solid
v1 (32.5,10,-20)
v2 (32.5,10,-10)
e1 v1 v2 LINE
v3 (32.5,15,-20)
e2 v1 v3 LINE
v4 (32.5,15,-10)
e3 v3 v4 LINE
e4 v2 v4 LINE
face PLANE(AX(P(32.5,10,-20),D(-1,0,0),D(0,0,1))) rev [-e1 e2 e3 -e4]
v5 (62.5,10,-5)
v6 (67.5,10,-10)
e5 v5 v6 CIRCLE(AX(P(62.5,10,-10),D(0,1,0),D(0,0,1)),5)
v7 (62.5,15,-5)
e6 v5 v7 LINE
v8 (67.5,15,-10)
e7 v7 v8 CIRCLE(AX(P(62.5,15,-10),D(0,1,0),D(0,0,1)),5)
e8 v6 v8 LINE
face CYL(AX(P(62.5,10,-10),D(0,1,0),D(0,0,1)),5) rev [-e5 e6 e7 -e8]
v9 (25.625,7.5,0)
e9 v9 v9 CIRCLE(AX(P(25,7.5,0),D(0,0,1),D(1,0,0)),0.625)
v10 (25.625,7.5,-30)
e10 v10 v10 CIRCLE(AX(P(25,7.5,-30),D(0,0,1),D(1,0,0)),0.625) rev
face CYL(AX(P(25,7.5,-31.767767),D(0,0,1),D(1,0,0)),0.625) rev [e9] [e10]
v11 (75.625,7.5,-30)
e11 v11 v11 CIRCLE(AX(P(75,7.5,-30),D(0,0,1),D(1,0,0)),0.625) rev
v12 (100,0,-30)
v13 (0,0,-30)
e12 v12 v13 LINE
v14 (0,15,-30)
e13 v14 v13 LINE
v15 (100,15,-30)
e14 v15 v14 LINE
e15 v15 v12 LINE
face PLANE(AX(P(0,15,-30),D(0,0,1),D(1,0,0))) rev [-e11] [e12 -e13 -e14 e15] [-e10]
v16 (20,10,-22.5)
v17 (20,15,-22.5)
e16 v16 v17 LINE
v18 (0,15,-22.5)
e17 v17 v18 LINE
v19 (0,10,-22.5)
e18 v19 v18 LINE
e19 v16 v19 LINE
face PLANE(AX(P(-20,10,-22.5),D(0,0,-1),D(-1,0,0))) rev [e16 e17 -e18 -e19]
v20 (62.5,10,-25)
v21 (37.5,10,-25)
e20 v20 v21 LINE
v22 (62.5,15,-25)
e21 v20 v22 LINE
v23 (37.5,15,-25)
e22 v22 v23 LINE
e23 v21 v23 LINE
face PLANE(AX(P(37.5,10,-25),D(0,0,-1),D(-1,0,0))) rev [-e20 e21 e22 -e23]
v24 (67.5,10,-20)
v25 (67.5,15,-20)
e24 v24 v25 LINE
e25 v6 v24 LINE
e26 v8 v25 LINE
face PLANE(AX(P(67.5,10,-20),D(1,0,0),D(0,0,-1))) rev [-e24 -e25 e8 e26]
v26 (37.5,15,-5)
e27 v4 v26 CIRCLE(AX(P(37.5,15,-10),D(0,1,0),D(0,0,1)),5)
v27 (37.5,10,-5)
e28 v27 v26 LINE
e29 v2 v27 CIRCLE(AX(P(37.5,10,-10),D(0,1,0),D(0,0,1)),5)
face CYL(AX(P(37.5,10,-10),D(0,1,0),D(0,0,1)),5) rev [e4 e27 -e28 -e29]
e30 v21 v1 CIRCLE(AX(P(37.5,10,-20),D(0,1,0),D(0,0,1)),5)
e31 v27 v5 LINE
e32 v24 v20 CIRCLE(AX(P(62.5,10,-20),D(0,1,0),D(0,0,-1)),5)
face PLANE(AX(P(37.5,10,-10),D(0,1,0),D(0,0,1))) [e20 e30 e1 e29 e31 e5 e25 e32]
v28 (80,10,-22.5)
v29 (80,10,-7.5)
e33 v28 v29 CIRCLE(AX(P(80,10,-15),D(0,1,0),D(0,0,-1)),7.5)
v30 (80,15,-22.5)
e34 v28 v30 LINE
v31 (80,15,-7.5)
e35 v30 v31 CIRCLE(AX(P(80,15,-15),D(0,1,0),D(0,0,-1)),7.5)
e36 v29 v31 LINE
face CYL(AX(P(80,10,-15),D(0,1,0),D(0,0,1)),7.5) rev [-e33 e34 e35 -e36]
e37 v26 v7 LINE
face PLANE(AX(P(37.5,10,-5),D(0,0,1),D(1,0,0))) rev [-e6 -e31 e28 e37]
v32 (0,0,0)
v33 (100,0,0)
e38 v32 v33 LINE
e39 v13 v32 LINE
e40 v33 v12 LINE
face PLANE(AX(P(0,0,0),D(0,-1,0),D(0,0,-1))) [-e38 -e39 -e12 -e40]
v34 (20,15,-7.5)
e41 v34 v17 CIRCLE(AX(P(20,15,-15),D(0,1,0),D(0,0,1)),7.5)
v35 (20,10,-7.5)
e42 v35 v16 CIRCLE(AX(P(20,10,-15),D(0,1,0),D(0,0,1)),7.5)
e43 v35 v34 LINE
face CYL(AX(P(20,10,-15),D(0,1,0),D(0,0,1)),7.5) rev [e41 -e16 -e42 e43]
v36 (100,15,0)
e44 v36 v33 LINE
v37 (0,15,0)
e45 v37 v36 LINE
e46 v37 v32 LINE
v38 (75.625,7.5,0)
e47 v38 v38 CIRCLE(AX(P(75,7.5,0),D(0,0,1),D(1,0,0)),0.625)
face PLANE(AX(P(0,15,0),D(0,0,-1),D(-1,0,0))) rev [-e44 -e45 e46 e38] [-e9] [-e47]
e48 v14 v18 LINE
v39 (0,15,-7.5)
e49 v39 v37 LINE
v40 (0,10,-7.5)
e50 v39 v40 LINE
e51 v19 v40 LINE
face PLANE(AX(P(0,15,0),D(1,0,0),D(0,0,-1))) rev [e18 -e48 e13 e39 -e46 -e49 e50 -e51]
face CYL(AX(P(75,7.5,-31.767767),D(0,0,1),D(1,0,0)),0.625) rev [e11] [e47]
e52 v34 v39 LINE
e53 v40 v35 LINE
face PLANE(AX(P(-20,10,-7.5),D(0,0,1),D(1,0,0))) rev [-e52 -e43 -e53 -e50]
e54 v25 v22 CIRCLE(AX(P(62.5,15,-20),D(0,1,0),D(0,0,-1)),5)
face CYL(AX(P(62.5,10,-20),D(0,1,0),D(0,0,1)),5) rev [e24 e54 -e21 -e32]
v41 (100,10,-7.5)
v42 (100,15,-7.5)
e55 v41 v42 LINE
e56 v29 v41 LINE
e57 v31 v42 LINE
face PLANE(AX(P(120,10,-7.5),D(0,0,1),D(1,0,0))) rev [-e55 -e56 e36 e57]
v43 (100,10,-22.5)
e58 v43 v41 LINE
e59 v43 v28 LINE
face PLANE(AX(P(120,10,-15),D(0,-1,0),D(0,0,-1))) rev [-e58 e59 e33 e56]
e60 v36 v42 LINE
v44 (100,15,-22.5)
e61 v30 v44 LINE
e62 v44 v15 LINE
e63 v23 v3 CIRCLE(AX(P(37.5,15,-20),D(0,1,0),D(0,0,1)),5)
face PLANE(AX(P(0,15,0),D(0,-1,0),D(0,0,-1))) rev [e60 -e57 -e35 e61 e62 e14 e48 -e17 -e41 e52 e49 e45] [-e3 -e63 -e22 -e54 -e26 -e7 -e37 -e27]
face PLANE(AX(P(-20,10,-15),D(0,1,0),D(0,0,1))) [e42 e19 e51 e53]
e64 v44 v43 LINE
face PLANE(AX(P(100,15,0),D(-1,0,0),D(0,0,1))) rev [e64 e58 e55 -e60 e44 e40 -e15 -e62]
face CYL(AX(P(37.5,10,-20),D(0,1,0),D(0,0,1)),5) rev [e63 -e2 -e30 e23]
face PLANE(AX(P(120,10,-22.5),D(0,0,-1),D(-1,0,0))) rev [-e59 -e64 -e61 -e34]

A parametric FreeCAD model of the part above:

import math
import FreeCAD as App
import Part
import Sketcher
from FreeCAD import Vector
Q = App.Units.Quantity

doc = App.newDocument("Part")
body = doc.addObject("PartDesign::Body", "Body")

sketch1 = doc.addObject("Sketcher::SketchObject", "Sketch")
body.addObject(sketch1)
sketch1.AttachmentSupport = (doc.XZ_Plane, [""])
sketch1.MapMode = "FlatFace"
sketch1.addGeometry([
    Part.LineSegment(Vector(0, -30, 0), Vector(0, 0, 0)),
    Part.LineSegment(Vector(0, 0, 0), Vector(100, 0, 0)),
    Part.LineSegment(Vector(100, 0, 0), Vector(100, -30, 0)),
    Part.LineSegment(Vector(100, -30, 0), Vector(0, -30, 0)),
], False)
sketch1.addConstraint([
    Sketcher.Constraint("Coincident", 0, 2, 1, 1),
    Sketcher.Constraint("Coincident", 1, 2, 2, 1),
    Sketcher.Constraint("Coincident", 2, 2, 3, 1),
    Sketcher.Constraint("Coincident", 3, 2, 0, 1),
    Sketcher.Constraint("Vertical", 0),
    Sketcher.Constraint("Horizontal", 1),
    Sketcher.Constraint("Vertical", 2),
    Sketcher.Constraint("Horizontal", 3),
    Sketcher.Constraint("Coincident", 0, 2, -1, 1),
    Sketcher.Constraint("DistanceX", 1, 1, 1, 2, Q("100 mm")),
    Sketcher.Constraint("DistanceY", 0, 1, 0, 2, Q("30 mm")),
])
pad1 = doc.addObject("PartDesign::Pad", "Pad")
body.addObject(pad1)
pad1.Profile = sketch1
pad1.Length = 15
pad1.Reversed = True

sketch2 = doc.addObject("Sketcher::SketchObject", "Sketch001")
body.addObject(sketch2)
sketch2.AttachmentSupport = (doc.XZ_Plane, [""])
sketch2.MapMode = "FlatFace"
sketch2.AttachmentOffset = App.Placement(Vector(0, 0, -15), App.Rotation())
sketch2.addGeometry([
    Part.LineSegment(Vector(20, -22.5, 0), Vector(-20, -22.5, 0)),
    Part.ArcOfCircle(Part.Circle(Vector(-20, -15, 0), Vector(0, 0, 1), 7.5), math.radians(90), math.radians(270)),
    Part.LineSegment(Vector(-20, -7.5, 0), Vector(20, -7.5, 0)),
    Part.ArcOfCircle(Part.Circle(Vector(20, -15, 0), Vector(0, 0, 1), 7.5), math.radians(-90), math.radians(90)),
    Part.LineSegment(Vector(120, -22.5, 0), Vector(80, -22.5, 0)),
    Part.ArcOfCircle(Part.Circle(Vector(80, -15, 0), Vector(0, 0, 1), 7.5), math.radians(90), math.radians(270)),
    Part.LineSegment(Vector(80, -7.5, 0), Vector(120, -7.5, 0)),
    Part.ArcOfCircle(Part.Circle(Vector(120, -15, 0), Vector(0, 0, 1), 7.5), math.radians(-90), math.radians(90)),
], False)
sketch2.addConstraint([
    Sketcher.Constraint("Tangent", 0, 2, 1, 2),
    Sketcher.Constraint("Tangent", 1, 1, 2, 1),
    Sketcher.Constraint("Tangent", 2, 2, 3, 2),
    Sketcher.Constraint("Tangent", 3, 1, 0, 1),
    Sketcher.Constraint("Tangent", 4, 2, 5, 2),
    Sketcher.Constraint("Tangent", 5, 1, 6, 1),
    Sketcher.Constraint("Tangent", 6, 2, 7, 2),
    Sketcher.Constraint("Tangent", 7, 1, 4, 1),
    Sketcher.Constraint("Horizontal", 0),
    Sketcher.Constraint("Horizontal", 2),
    Sketcher.Constraint("Horizontal", 4),
    Sketcher.Constraint("Horizontal", 6),
    Sketcher.Constraint("Equal", 3, 5),
    Sketcher.Constraint("Horizontal", 3, 3, 5, 3),
    Sketcher.Constraint("Equal", 2, 4),
    Sketcher.Constraint("Radius", 1, Q("7.5 mm")),
    Sketcher.Constraint("DistanceX", 0, 2, 0, 1, Q("40 mm")),
    Sketcher.Constraint("DistanceX", 1, 3, -1, 1, Q("20 mm")),
    Sketcher.Constraint("DistanceY", 1, 3, -1, 1, Q("15 mm")),
    Sketcher.Constraint("DistanceX", -1, 1, 5, 3, Q("80 mm")),
])
pocket1 = doc.addObject("PartDesign::Pocket", "Pocket")
body.addObject(pocket1)
pocket1.Profile = sketch2
pocket1.Length = 5
pocket1.Reversed = True

sketch3 = doc.addObject("Sketcher::SketchObject", "Sketch002")
body.addObject(sketch3)
sketch3.AttachmentSupport = (doc.XY_Plane, [""])
sketch3.MapMode = "FlatFace"
sketch3.addGeometry([
    Part.Circle(Vector(25, 7.5, 0), Vector(0, 0, 1), 0.625),
    Part.Circle(Vector(75, 7.5, 0), Vector(0, 0, 1), 0.625),
], False)
sketch3.addConstraint([
    Sketcher.Constraint("Equal", 0, 1),
    Sketcher.Constraint("Horizontal", 0, 3, 1, 3),
    Sketcher.Constraint("Diameter", 0, Q("1.25 mm")),
    Sketcher.Constraint("DistanceX", -1, 1, 0, 3, Q("25 mm")),
    Sketcher.Constraint("DistanceX", -1, 1, 1, 3, Q("75 mm")),
    Sketcher.Constraint("DistanceY", -1, 1, 0, 3, Q("7.5 mm")),
])
pocket2 = doc.addObject("PartDesign::Pocket", "Pocket001")
body.addObject(pocket2)
pocket2.Profile = sketch3
pocket2.Length = 30

sketch4 = doc.addObject("Sketcher::SketchObject", "Sketch003")
body.addObject(sketch4)
sketch4.AttachmentSupport = (doc.XZ_Plane, [""])
sketch4.MapMode = "FlatFace"
sketch4.AttachmentOffset = App.Placement(Vector(0, 0, -15), App.Rotation())
sketch4.addGeometry([
    Part.LineSegment(Vector(62.5, -25, 0), Vector(37.5, -25, 0)),
    Part.ArcOfCircle(Part.Circle(Vector(37.5, -20, 0), Vector(0, 0, 1), 5), math.radians(180), math.radians(270)),
    Part.LineSegment(Vector(32.5, -20, 0), Vector(32.5, -10, 0)),
    Part.ArcOfCircle(Part.Circle(Vector(37.5, -10, 0), Vector(0, 0, 1), 5), math.radians(90), math.radians(180)),
    Part.LineSegment(Vector(37.5, -5, 0), Vector(62.5, -5, 0)),
    Part.ArcOfCircle(Part.Circle(Vector(62.5, -10, 0), Vector(0, 0, 1), 5), math.radians(0), math.radians(90)),
    Part.LineSegment(Vector(67.5, -10, 0), Vector(67.5, -20, 0)),
    Part.ArcOfCircle(Part.Circle(Vector(62.5, -20, 0), Vector(0, 0, 1), 5), math.radians(-90), math.radians(0)),
], False)
sketch4.addConstraint([
    Sketcher.Constraint("Tangent", 0, 2, 1, 2),
    Sketcher.Constraint("Tangent", 1, 1, 2, 1),
    Sketcher.Constraint("Tangent", 2, 2, 3, 2),
    Sketcher.Constraint("Tangent", 3, 1, 4, 1),
    Sketcher.Constraint("Tangent", 4, 2, 5, 2),
    Sketcher.Constraint("Tangent", 5, 1, 6, 1),
    Sketcher.Constraint("Tangent", 6, 2, 7, 2),
    Sketcher.Constraint("Tangent", 7, 1, 0, 1),
    Sketcher.Constraint("Horizontal", 0),
    Sketcher.Constraint("Vertical", 2),
    Sketcher.Constraint("Horizontal", 4),
    Sketcher.Constraint("Vertical", 6),
    Sketcher.Constraint("Equal", 1, 3),
    Sketcher.Constraint("Equal", 3, 5),
    Sketcher.Constraint("Equal", 5, 7),
    Sketcher.Constraint("Radius", 1, Q("5 mm")),
    Sketcher.Constraint("DistanceX", 0, 2, 0, 1, Q("25 mm")),
    Sketcher.Constraint("DistanceY", 2, 1, 2, 2, Q("10 mm")),
    Sketcher.Constraint("DistanceY", 1, 3, -1, 1, Q("20 mm")),
    Sketcher.Constraint("DistanceX", -1, 1, 1, 3, Q("37.5 mm")),
])
pocket3 = doc.addObject("PartDesign::Pocket", "Pocket002")
body.addObject(pocket3)
pocket3.Profile = sketch4
pocket3.Length = 5
pocket3.Reversed = True

doc.recompute()
